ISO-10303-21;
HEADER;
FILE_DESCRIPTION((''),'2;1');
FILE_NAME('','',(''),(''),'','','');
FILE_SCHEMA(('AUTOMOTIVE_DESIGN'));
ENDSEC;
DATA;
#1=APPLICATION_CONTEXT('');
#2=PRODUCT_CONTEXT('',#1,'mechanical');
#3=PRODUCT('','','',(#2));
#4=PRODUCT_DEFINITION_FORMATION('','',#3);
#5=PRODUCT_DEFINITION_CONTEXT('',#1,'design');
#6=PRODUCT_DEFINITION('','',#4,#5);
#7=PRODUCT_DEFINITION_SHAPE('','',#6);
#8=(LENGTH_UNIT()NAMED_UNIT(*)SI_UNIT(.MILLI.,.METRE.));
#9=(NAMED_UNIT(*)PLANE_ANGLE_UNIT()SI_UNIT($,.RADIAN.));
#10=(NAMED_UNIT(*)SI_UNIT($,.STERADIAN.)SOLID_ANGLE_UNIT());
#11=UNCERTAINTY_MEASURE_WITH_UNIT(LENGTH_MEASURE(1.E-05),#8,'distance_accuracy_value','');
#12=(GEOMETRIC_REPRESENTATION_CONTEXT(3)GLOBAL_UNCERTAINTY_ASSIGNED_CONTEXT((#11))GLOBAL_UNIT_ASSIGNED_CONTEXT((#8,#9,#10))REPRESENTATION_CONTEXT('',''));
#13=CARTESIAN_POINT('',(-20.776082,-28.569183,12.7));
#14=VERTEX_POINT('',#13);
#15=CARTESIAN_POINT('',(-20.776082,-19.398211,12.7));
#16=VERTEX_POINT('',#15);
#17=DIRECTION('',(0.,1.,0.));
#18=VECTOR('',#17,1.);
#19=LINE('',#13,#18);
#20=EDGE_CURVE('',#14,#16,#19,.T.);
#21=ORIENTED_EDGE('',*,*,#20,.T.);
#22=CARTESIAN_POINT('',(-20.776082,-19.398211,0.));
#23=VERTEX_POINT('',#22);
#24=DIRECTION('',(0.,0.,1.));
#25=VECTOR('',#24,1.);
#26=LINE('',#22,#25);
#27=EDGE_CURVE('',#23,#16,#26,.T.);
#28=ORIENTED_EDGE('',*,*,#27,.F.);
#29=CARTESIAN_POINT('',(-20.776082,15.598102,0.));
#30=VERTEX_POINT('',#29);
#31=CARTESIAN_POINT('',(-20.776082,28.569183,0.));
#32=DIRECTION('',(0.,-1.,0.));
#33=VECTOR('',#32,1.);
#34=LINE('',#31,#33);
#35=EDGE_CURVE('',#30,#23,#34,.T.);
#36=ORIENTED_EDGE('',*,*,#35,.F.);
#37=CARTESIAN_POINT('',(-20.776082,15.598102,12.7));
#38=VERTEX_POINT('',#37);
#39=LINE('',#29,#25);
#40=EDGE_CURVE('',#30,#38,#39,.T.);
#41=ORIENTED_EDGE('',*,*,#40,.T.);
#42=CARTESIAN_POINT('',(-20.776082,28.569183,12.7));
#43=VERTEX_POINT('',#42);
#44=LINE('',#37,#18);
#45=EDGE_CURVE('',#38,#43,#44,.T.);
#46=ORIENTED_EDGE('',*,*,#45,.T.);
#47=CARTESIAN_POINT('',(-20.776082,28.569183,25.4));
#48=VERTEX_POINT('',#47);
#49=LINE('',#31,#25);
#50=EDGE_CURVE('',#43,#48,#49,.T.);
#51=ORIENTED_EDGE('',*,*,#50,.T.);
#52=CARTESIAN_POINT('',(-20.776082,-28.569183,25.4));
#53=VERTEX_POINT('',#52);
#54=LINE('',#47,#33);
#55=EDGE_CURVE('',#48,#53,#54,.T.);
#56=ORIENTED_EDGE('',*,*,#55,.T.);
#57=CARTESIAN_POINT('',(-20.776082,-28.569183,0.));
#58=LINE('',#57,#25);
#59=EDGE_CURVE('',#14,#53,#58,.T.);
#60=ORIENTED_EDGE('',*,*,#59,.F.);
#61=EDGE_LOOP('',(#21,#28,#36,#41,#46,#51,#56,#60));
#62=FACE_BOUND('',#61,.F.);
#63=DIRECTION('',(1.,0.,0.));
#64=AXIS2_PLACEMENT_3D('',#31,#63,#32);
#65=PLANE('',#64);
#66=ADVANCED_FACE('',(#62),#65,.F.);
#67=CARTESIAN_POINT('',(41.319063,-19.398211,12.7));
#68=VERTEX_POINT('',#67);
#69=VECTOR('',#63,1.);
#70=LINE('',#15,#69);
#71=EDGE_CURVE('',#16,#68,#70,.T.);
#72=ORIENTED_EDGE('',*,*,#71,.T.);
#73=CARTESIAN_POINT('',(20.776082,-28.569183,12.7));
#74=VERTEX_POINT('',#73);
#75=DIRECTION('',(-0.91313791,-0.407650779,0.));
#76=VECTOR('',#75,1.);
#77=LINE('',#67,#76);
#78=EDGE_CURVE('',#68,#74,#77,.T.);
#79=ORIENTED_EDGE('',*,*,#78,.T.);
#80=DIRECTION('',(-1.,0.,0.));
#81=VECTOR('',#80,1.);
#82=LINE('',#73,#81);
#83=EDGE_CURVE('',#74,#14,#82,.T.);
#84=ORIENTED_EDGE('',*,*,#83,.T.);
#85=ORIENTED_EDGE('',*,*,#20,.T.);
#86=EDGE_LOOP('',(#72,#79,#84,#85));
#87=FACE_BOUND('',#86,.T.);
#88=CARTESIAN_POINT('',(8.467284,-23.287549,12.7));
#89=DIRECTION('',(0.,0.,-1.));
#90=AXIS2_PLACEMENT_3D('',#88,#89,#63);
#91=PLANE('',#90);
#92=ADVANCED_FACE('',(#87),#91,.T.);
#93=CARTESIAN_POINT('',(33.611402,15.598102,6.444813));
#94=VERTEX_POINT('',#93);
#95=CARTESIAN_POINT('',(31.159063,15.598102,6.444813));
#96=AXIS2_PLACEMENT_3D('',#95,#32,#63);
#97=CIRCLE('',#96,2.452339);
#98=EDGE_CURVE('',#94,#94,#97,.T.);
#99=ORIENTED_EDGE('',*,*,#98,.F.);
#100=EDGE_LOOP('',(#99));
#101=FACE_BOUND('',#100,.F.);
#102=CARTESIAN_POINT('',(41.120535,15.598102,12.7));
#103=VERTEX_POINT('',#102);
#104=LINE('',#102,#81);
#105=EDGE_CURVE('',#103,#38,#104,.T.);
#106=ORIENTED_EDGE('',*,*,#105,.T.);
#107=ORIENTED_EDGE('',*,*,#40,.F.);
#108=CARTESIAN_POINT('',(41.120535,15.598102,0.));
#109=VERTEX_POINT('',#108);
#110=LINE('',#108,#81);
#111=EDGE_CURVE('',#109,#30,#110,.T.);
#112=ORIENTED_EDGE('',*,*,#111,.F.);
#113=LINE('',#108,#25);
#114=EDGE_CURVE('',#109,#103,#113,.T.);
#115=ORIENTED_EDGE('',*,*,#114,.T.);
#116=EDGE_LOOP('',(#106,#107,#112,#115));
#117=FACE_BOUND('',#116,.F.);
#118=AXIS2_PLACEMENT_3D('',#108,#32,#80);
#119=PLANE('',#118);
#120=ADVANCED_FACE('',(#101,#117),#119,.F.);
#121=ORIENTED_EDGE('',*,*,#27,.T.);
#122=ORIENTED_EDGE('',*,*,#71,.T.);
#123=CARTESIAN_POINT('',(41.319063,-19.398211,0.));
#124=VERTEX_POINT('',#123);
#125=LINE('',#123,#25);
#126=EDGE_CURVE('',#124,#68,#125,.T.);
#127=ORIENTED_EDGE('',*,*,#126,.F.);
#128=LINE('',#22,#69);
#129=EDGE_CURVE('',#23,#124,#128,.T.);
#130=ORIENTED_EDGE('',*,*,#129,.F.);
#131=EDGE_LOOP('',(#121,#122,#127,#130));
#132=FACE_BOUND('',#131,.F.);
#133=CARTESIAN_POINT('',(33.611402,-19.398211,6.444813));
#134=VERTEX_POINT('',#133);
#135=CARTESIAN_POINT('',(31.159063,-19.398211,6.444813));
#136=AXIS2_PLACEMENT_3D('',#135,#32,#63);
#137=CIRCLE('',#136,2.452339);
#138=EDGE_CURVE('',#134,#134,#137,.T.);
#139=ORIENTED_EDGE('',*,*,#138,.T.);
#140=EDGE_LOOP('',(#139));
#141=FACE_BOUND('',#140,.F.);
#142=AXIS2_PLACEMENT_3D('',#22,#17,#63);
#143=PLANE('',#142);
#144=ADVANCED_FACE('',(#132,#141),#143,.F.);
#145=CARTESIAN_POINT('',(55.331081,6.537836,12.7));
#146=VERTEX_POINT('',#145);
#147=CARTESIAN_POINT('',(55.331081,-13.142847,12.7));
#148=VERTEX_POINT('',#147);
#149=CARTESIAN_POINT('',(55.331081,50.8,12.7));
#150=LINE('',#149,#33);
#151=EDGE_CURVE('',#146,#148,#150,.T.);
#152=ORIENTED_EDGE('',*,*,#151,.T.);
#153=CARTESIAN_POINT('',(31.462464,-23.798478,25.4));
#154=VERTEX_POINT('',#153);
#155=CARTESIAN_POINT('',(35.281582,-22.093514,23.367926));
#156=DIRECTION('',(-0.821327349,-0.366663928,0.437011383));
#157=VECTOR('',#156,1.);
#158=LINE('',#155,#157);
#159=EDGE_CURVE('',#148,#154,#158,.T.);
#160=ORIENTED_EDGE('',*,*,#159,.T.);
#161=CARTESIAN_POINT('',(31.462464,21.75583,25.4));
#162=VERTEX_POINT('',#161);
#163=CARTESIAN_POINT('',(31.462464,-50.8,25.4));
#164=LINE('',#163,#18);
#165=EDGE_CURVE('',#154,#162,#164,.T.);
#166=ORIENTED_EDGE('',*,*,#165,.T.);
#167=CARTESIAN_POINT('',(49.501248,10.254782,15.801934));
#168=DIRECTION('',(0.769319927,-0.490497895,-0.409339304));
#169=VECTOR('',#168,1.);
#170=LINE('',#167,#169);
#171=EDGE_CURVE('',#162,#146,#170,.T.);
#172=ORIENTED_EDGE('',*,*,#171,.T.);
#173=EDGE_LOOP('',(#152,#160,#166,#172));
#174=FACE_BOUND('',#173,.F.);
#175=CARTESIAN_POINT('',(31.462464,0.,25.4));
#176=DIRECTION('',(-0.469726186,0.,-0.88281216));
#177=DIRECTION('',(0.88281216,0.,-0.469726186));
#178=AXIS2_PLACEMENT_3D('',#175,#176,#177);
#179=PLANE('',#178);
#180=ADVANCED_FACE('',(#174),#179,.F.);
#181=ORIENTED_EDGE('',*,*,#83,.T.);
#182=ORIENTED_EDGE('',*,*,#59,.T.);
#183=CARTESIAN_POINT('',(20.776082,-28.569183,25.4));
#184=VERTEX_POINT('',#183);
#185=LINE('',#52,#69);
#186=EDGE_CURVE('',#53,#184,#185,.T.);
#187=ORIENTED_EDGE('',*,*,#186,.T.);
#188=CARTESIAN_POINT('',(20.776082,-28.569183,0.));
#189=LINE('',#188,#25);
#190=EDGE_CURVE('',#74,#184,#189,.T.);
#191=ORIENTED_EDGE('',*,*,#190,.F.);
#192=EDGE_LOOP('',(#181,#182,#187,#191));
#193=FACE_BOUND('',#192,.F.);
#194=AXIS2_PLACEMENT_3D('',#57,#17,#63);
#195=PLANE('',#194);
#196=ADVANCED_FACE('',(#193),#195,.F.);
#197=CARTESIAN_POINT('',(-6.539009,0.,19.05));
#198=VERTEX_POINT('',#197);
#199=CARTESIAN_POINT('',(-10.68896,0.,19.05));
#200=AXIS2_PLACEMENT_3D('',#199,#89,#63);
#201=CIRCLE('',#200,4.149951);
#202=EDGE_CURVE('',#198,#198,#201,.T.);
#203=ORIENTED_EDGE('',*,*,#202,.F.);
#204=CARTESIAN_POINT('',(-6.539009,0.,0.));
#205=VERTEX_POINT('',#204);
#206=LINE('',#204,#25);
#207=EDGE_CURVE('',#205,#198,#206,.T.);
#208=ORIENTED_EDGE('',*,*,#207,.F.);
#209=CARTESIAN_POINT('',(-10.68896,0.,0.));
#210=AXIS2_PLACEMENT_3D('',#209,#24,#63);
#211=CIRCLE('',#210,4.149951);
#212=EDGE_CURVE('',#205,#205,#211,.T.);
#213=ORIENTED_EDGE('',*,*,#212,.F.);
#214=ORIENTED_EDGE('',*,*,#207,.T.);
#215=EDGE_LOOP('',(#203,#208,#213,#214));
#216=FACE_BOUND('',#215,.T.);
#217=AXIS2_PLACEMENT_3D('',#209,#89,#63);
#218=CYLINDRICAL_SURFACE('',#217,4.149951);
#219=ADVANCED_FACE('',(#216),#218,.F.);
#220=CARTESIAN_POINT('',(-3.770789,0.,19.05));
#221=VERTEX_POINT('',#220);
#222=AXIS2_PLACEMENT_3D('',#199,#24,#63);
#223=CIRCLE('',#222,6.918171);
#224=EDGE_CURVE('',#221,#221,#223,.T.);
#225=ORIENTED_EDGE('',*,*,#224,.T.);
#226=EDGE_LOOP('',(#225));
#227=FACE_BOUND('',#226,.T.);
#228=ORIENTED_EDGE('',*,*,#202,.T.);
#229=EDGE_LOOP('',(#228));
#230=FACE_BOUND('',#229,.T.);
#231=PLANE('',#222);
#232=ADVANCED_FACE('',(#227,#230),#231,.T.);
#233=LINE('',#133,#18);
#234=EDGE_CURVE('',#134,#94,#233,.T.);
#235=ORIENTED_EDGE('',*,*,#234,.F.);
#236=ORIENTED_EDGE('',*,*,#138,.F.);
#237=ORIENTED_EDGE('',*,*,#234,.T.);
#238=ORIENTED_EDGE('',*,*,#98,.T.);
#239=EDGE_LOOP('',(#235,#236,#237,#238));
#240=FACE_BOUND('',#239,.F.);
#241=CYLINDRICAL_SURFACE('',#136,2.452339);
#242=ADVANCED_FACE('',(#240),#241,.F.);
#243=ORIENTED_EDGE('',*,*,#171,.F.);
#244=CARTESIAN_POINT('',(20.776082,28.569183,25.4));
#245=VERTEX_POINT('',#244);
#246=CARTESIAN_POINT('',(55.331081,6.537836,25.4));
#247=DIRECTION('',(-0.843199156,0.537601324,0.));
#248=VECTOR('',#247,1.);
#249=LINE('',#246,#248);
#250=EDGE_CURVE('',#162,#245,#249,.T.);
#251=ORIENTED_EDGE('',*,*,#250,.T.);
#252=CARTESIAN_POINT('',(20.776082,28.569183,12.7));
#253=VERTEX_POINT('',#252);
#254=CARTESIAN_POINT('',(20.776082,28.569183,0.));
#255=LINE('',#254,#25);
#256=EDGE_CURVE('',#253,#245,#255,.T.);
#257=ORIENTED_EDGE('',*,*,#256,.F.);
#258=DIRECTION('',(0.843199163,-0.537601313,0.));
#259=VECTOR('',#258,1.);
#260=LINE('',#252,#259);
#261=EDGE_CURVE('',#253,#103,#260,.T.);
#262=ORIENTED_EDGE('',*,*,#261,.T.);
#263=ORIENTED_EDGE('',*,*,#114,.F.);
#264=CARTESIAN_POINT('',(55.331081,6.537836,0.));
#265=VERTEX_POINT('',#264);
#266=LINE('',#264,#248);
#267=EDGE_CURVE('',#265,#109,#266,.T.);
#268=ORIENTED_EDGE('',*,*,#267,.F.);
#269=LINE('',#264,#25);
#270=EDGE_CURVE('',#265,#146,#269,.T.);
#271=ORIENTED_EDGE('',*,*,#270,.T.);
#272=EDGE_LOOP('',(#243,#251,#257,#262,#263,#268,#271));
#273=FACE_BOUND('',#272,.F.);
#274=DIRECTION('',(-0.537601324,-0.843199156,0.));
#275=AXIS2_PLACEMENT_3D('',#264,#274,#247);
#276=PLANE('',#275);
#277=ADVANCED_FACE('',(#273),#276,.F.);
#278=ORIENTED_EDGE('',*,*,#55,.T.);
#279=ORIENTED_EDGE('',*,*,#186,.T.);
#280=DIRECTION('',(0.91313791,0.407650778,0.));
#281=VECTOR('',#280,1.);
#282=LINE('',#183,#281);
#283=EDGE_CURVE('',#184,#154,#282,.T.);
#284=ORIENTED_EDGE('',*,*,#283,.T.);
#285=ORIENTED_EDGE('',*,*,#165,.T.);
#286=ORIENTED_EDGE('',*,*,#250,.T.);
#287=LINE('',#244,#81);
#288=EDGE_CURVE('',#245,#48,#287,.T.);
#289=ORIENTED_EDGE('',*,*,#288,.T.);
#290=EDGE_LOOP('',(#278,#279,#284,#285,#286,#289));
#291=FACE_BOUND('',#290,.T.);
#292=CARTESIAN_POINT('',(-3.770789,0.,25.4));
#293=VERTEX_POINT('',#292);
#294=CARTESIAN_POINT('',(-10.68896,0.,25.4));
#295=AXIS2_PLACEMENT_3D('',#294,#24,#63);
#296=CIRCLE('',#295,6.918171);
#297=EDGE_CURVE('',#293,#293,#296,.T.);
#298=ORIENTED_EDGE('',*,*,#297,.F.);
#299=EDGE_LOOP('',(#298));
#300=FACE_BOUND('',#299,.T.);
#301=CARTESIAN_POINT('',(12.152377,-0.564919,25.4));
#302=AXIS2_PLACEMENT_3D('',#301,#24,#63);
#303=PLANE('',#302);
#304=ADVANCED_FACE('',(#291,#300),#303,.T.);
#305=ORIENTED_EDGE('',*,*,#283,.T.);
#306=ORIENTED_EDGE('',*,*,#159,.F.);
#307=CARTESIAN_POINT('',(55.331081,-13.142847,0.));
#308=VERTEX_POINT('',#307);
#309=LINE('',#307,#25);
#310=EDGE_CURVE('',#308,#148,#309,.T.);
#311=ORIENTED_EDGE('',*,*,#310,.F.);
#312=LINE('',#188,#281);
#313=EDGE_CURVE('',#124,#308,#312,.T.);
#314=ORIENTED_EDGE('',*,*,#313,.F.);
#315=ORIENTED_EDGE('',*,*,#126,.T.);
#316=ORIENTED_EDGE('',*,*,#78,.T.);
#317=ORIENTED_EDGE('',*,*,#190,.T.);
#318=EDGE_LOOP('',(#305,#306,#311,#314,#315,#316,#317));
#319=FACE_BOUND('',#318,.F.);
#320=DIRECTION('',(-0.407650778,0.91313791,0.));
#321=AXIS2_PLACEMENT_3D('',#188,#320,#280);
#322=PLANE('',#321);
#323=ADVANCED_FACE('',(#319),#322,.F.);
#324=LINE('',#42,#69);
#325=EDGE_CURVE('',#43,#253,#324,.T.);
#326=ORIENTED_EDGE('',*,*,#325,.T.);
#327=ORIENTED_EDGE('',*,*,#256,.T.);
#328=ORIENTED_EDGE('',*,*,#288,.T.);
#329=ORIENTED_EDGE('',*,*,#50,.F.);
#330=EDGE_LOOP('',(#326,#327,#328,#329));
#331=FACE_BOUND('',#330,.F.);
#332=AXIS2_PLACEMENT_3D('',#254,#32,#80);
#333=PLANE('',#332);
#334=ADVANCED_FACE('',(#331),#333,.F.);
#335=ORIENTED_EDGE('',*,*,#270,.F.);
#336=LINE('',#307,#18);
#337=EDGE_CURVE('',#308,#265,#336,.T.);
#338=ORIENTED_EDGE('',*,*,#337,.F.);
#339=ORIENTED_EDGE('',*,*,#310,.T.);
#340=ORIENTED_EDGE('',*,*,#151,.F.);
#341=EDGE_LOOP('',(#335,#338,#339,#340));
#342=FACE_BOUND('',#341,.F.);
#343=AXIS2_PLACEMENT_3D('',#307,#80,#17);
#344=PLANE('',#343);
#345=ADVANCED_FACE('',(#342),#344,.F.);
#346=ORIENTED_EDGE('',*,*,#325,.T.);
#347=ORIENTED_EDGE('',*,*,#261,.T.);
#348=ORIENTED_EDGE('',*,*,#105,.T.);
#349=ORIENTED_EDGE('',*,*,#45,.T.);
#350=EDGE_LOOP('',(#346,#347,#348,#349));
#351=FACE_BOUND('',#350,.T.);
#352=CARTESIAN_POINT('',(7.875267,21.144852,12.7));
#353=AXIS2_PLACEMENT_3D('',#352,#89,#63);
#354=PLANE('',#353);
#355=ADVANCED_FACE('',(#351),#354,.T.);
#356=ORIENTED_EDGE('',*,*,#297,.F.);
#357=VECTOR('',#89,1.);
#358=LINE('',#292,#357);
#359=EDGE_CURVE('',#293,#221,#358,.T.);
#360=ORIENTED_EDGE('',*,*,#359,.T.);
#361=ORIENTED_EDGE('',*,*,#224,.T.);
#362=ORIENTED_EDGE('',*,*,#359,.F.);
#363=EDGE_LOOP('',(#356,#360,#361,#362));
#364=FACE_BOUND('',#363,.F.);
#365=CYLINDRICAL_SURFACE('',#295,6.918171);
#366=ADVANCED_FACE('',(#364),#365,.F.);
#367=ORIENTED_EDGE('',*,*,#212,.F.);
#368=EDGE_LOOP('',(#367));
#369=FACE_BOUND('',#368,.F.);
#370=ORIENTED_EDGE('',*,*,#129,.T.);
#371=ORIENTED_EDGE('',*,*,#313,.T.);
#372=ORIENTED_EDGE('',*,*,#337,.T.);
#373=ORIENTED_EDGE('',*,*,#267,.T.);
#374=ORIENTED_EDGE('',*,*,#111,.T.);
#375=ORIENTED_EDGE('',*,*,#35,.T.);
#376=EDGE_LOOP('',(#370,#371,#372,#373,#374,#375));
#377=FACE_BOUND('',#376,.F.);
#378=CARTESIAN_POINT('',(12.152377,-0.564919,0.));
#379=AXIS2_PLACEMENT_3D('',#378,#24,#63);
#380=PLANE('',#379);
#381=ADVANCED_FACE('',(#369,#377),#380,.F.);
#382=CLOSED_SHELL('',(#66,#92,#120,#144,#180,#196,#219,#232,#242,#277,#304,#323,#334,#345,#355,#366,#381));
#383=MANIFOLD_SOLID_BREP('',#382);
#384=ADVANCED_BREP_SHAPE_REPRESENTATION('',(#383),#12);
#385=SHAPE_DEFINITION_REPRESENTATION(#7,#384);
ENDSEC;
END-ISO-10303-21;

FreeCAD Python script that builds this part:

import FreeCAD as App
import Part
import Sketcher
from FreeCAD import Vector
Q = App.Units.Quantity


def add_polygon(sketch, points):
    """Adds a closed chain of lines whose ends are joined by coincident constraints."""
    first, n = sketch.GeometryCount, len(points)
    for a, b in zip(points, points[1:] + points[:1]):
        sketch.addGeometry(Part.LineSegment(App.Vector(*a, 0), App.Vector(*b, 0)), False)
    for i in range(n):
        sketch.addConstraint(Sketcher.Constraint("Coincident", first + i, 2, first + (i + 1) % n, 1))

doc = App.newDocument("Part")
body = doc.addObject("PartDesign::Body", "Body")

# Sketch on XY plane
sketch1 = doc.addObject("Sketcher::SketchObject", "Sketch")
body.addObject(sketch1)
sketch1.AttachmentSupport = (doc.XY_Plane, [""])
sketch1.MapMode = "FlatFace"
add_polygon(sketch1, [(20.8, 28.6), (-20.8, 28.6), (-20.8, -28.6), (20.8, -28.6), (55.3, -13.1), (55.3, 6.5)])  # lines 0-5
sketch1.addGeometry(Part.Circle(Vector(-10.7, 0, 0), Vector(0, 0, 1), 4.1), False)  # 6
sketch1.addConstraint([
    Sketcher.Constraint("Horizontal", 0),
    Sketcher.Constraint("Vertical", 1),
    Sketcher.Constraint("Horizontal", 2),
    Sketcher.Constraint("Vertical", 4),
    Sketcher.Constraint("Symmetric", 0, 2, 2, 2, -1, 1),
    Sketcher.Constraint("PointOnObject", 6, 3, -1),
    Sketcher.Constraint("Vertical", 2, 2, 5, 2),
    Sketcher.Constraint("Diameter", 6, Q("8.299902 mm")),
    Sketcher.Constraint("DistanceX", 2, 2, 3, 2, Q("34.554999 mm")),
    Sketcher.Constraint("DistanceX", 0, 2, 0, 1, Q("41.552164 mm")),
    Sketcher.Constraint("DistanceY", 1, 2, 1, 1, Q("57.138366 mm")),
    Sketcher.Constraint("DistanceY", 4, 1, 4, 2, Q("19.680683 mm")),
    Sketcher.Constraint("DistanceX", 6, 3, -1, 1, Q("10.68896 mm")),
    Sketcher.Constraint("DistanceY", 3, 2, 0, 2, Q("41.71203 mm")),
])
pad1 = doc.addObject("PartDesign::Pad", "Pad")
body.addObject(pad1)
pad1.Profile = sketch1
pad1.Length = Q("1 in")

# Sketch on XZ plane
sketch2 = doc.addObject("Sketcher::SketchObject", "Sketch001")
body.addObject(sketch2)
sketch2.AttachmentSupport = (doc.XZ_Plane, [""])
sketch2.MapMode = "FlatFace"
add_polygon(sketch2, [(31, 25), (55, 13), (55, 25)])  # lines 0-2
sketch2.addConstraint([
    Sketcher.Constraint("Vertical", 1),
    Sketcher.Constraint("Horizontal", 2),
    Sketcher.Constraint("DistanceY", 1, 1, 1, 2, Q("0.5 in")),
    Sketcher.Constraint("DistanceY", -1, 1, 1, 2, Q("1 in")),
    Sketcher.Constraint("DistanceX", 2, 2, 2, 1, Q("23.868617 mm")),
    Sketcher.Constraint("DistanceX", -1, 1, 0, 2, Q("55.331081 mm")),
])
pocket1 = doc.addObject("PartDesign::Pocket", "Pocket")
body.addObject(pocket1)
pocket1.Profile = sketch2
pocket1.Length = Q("4 in")
pocket1.Midplane = True

# Sketch on XY plane
sketch3 = doc.addObject("Sketcher::SketchObject", "Sketch002")
body.addObject(sketch3)
sketch3.AttachmentSupport = (doc.XY_Plane, [""])
sketch3.MapMode = "FlatFace"
add_polygon(sketch3, [(21, -29), (-21, -29), (-21, -19), (41, -19)])  # lines 0-3
add_polygon(sketch3, [(41, 16), (-21, 16), (-21, 29), (21, 29)])  # lines 4-7
sketch3.addConstraint([
    Sketcher.Constraint("Horizontal", 0),
    Sketcher.Constraint("Vertical", 1),
    Sketcher.Constraint("Horizontal", 2),
    Sketcher.Constraint("Horizontal", 4),
    Sketcher.Constraint("Vertical", 5),
    Sketcher.Constraint("Horizontal", 6),
    Sketcher.Constraint("Symmetric", 3, 2, 5, 2, -1, 1),
    Sketcher.Constraint("Vertical", 1, 2, 4, 2),
    Sketcher.Constraint("Vertical", 3, 2, 6, 2),
    Sketcher.Constraint("DistanceY", 1, 1, 1, 2, Q("9.170972 mm")),
    Sketcher.Constraint("DistanceY", 5, 1, 5, 2, Q("12.971081 mm")),
    Sketcher.Constraint("Distance", 3, Q("22.497129 mm")),
    Sketcher.Constraint("DistanceX", 0, 2, 0, 1, Q("41.552164 mm")),
    Sketcher.Constraint("DistanceX", 4, 2, 4, 1, Q("61.896617 mm")),
    Sketcher.Constraint("DistanceY", 1, 2, -1, 1, Q("19.398211 mm")),
])
pocket2 = doc.addObject("PartDesign::Pocket", "Pocket001")
body.addObject(pocket2)
pocket2.Profile = sketch3
pocket2.Length = Q("0.5 in")
pocket2.Reversed = True

# Sketch on XY plane
sketch4 = doc.addObject("Sketcher::SketchObject", "Sketch003")
body.addObject(sketch4)
sketch4.AttachmentSupport = (doc.XY_Plane, [""])
sketch4.MapMode = "FlatFace"
sketch4.AttachmentOffset = App.Placement(Vector(0, 0, 1 * 25.4), App.Rotation())
sketch4.addGeometry(Part.Circle(Vector(-11, 0, 0), Vector(0, 0, 1), 7), False)
sketch4.addConstraint([
    Sketcher.Constraint("PointOnObject", 0, 3, -1),
    Sketcher.Constraint("Diameter", 0, Q("13.836342 mm")),
    Sketcher.Constraint("DistanceX", 0, 3, -1, 1, Q("10.68896 mm")),
])
pocket3 = doc.addObject("PartDesign::Pocket", "Pocket002")
body.addObject(pocket3)
pocket3.Profile = sketch4
pocket3.Length = Q("0.25 in")

# Sketch on XZ plane
sketch5 = doc.addObject("Sketcher::SketchObject", "Sketch004")
body.addObject(sketch5)
sketch5.AttachmentSupport = (doc.XZ_Plane, [""])
sketch5.MapMode = "FlatFace"
sketch5.AttachmentOffset = App.Placement(Vector(0, 0, 19.398211), App.Rotation())
sketch5.addGeometry(Part.Circle(Vector(31.2, 6.4, 0), Vector(0, 0, 1), 2.5), False)
sketch5.addConstraint([
    Sketcher.Constraint("Diameter", 0, Q("4.904678 mm")),
    Sketcher.Constraint("DistanceX", -1, 1, 0, 3, Q("31.159063 mm")),
    Sketcher.Constraint("DistanceY", -1, 1, 0, 3, Q("6.444813 mm")),
])
pocket4 = doc.addObject("PartDesign::Pocket", "Pocket003")
body.addObject(pocket4)
pocket4.Profile = sketch5
pocket4.Type = "ThroughAll"

doc.recompute()
